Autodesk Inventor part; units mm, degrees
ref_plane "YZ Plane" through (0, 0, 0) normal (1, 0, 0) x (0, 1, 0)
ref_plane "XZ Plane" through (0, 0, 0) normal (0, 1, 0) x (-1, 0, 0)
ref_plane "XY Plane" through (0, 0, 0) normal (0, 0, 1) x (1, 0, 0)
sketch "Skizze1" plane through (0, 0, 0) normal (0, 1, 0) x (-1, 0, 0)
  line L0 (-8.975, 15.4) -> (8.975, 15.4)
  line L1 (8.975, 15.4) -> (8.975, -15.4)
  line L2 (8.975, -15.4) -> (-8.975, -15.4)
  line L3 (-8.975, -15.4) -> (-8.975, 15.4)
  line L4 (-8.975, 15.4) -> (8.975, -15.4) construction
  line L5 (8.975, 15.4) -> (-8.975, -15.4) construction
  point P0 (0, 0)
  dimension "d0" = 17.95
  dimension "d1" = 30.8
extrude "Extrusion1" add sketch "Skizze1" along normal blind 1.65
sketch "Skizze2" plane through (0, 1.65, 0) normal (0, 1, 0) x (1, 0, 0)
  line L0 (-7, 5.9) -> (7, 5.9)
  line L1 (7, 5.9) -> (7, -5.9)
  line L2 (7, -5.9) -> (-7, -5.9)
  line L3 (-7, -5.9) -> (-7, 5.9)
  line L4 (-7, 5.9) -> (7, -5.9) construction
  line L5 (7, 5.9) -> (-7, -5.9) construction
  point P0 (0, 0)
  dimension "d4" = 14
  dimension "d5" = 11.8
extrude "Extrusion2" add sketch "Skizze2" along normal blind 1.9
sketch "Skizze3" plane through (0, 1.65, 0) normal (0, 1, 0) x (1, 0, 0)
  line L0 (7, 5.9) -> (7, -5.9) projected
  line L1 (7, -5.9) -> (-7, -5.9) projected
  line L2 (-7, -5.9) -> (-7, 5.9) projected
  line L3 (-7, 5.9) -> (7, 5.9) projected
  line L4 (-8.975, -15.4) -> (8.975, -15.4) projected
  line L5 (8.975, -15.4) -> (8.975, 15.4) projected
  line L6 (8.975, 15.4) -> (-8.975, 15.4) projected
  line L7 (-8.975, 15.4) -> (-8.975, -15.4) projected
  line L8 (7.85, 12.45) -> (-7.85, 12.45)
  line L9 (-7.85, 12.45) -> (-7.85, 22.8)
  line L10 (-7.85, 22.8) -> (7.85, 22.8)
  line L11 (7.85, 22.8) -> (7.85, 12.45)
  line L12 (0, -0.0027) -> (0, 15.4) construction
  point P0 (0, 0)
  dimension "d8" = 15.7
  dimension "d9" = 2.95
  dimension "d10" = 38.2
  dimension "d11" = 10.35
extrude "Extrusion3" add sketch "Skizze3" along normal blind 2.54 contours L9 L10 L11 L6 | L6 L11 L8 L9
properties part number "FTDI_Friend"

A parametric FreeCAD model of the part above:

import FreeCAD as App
import Part
import Sketcher
from FreeCAD import Vector
Q = App.Units.Quantity


def add_polygon(sketch, points):
    """Adds a closed chain of lines whose ends are joined by coincident constraints."""
    first, n = sketch.GeometryCount, len(points)
    for a, b in zip(points, points[1:] + points[:1]):
        sketch.addGeometry(Part.LineSegment(App.Vector(*a, 0), App.Vector(*b, 0)), False)
    for i in range(n):
        sketch.addConstraint(Sketcher.Constraint("Coincident", first + i, 2, first + (i + 1) % n, 1))

doc = App.newDocument("Part")
body = doc.addObject("PartDesign::Body", "Body")

# Sketch on XZ plane
sketch1 = doc.addObject("Sketcher::SketchObject", "Sketch")
body.addObject(sketch1)
sketch1.AttachmentSupport = (doc.XZ_Plane, [""])
sketch1.MapMode = "FlatFace"
add_polygon(sketch1, [(-9, 15), (9, 15), (9, -15), (-9, -15)])  # lines 0-3
sketch1.addConstraint(Sketcher.Constraint("Horizontal", 0))
sketch1.addConstraint(Sketcher.Constraint("Vertical", 1))
sketch1.addConstraint(Sketcher.Constraint("Horizontal", 2))
sketch1.addConstraint(Sketcher.Constraint("Vertical", 3))
sketch1.addConstraint(Sketcher.Constraint("Symmetric", 0, 2, 2, 2, -1, 1))
sketch1.addConstraint(Sketcher.Constraint("DistanceY", 1, 2, 1, 1, Q("30.8 mm")))
sketch1.addConstraint(Sketcher.Constraint("DistanceX", 0, 1, 0, 2, Q("17.95 mm")))
pad1 = doc.addObject("PartDesign::Pad", "Pad")
body.addObject(pad1)
pad1.Profile = sketch1
pad1.Length = 1.65
pad1.Reversed = True

# Sketch on XZ plane
sketch2 = doc.addObject("Sketcher::SketchObject", "Sketch001")
body.addObject(sketch2)
sketch2.AttachmentSupport = (doc.XZ_Plane, [""])
sketch2.MapMode = "FlatFace"
sketch2.AttachmentOffset = App.Placement(Vector(0, 0, -1.65), App.Rotation())
add_polygon(sketch2, [(7, -6), (-7, -6), (-7, 6), (7, 6)])  # lines 0-3
sketch2.addConstraint(Sketcher.Constraint("Horizontal", 0))
sketch2.addConstraint(Sketcher.Constraint("Vertical", 1))
sketch2.addConstraint(Sketcher.Constraint("Horizontal", 2))
sketch2.addConstraint(Sketcher.Constraint("Vertical", 3))
sketch2.addConstraint(Sketcher.Constraint("Symmetric", 0, 2, 2, 2, -1, 1))
sketch2.addConstraint(Sketcher.Constraint("DistanceX", 0, 2, 0, 1, Q("14 mm")))
sketch2.addConstraint(Sketcher.Constraint("DistanceY", 1, 1, 1, 2, Q("11.8 mm")))
pad2 = doc.addObject("PartDesign::Pad", "Pad001")
body.addObject(pad2)
pad2.Profile = sketch2
pad2.Length = 1.9
pad2.Reversed = True

# Sketch on XZ plane
sketch3 = doc.addObject("Sketcher::SketchObject", "Sketch002")
body.addObject(sketch3)
sketch3.AttachmentSupport = (doc.XZ_Plane, [""])
sketch3.MapMode = "FlatFace"
sketch3.AttachmentOffset = App.Placement(Vector(0, 0, -1.65), App.Rotation())
add_polygon(sketch3, [(-8, -23), (-8, -12), (8, -12), (8, -23)])  # lines 0-3
sketch3.addConstraint(Sketcher.Constraint("Vertical", 0))
sketch3.addConstraint(Sketcher.Constraint("Horizontal", 1))
sketch3.addConstraint(Sketcher.Constraint("Vertical", 2))
sketch3.addConstraint(Sketcher.Constraint("Horizontal", 3))
sketch3.addConstraint(Sketcher.Constraint("DistanceX", 1, 1, 1, 2, Q("15.7 mm")))
sketch3.addConstraint(Sketcher.Constraint("DistanceY", 0, 1, 0, 2, Q("10.35 mm")))
sketch3.addConstraint(Sketcher.Constraint("DistanceY", 2, 2, -1, 1, Q("22.8 mm")))
sketch3.addConstraint(Sketcher.Constraint("DistanceX", 0, 2, -1, 1, Q("7.85 mm")))
pad3 = doc.addObject("PartDesign::Pad", "Pad002")
body.addObject(pad3)
pad3.Profile = sketch3
pad3.Length = 2.54
pad3.Reversed = True

doc.recompute()
